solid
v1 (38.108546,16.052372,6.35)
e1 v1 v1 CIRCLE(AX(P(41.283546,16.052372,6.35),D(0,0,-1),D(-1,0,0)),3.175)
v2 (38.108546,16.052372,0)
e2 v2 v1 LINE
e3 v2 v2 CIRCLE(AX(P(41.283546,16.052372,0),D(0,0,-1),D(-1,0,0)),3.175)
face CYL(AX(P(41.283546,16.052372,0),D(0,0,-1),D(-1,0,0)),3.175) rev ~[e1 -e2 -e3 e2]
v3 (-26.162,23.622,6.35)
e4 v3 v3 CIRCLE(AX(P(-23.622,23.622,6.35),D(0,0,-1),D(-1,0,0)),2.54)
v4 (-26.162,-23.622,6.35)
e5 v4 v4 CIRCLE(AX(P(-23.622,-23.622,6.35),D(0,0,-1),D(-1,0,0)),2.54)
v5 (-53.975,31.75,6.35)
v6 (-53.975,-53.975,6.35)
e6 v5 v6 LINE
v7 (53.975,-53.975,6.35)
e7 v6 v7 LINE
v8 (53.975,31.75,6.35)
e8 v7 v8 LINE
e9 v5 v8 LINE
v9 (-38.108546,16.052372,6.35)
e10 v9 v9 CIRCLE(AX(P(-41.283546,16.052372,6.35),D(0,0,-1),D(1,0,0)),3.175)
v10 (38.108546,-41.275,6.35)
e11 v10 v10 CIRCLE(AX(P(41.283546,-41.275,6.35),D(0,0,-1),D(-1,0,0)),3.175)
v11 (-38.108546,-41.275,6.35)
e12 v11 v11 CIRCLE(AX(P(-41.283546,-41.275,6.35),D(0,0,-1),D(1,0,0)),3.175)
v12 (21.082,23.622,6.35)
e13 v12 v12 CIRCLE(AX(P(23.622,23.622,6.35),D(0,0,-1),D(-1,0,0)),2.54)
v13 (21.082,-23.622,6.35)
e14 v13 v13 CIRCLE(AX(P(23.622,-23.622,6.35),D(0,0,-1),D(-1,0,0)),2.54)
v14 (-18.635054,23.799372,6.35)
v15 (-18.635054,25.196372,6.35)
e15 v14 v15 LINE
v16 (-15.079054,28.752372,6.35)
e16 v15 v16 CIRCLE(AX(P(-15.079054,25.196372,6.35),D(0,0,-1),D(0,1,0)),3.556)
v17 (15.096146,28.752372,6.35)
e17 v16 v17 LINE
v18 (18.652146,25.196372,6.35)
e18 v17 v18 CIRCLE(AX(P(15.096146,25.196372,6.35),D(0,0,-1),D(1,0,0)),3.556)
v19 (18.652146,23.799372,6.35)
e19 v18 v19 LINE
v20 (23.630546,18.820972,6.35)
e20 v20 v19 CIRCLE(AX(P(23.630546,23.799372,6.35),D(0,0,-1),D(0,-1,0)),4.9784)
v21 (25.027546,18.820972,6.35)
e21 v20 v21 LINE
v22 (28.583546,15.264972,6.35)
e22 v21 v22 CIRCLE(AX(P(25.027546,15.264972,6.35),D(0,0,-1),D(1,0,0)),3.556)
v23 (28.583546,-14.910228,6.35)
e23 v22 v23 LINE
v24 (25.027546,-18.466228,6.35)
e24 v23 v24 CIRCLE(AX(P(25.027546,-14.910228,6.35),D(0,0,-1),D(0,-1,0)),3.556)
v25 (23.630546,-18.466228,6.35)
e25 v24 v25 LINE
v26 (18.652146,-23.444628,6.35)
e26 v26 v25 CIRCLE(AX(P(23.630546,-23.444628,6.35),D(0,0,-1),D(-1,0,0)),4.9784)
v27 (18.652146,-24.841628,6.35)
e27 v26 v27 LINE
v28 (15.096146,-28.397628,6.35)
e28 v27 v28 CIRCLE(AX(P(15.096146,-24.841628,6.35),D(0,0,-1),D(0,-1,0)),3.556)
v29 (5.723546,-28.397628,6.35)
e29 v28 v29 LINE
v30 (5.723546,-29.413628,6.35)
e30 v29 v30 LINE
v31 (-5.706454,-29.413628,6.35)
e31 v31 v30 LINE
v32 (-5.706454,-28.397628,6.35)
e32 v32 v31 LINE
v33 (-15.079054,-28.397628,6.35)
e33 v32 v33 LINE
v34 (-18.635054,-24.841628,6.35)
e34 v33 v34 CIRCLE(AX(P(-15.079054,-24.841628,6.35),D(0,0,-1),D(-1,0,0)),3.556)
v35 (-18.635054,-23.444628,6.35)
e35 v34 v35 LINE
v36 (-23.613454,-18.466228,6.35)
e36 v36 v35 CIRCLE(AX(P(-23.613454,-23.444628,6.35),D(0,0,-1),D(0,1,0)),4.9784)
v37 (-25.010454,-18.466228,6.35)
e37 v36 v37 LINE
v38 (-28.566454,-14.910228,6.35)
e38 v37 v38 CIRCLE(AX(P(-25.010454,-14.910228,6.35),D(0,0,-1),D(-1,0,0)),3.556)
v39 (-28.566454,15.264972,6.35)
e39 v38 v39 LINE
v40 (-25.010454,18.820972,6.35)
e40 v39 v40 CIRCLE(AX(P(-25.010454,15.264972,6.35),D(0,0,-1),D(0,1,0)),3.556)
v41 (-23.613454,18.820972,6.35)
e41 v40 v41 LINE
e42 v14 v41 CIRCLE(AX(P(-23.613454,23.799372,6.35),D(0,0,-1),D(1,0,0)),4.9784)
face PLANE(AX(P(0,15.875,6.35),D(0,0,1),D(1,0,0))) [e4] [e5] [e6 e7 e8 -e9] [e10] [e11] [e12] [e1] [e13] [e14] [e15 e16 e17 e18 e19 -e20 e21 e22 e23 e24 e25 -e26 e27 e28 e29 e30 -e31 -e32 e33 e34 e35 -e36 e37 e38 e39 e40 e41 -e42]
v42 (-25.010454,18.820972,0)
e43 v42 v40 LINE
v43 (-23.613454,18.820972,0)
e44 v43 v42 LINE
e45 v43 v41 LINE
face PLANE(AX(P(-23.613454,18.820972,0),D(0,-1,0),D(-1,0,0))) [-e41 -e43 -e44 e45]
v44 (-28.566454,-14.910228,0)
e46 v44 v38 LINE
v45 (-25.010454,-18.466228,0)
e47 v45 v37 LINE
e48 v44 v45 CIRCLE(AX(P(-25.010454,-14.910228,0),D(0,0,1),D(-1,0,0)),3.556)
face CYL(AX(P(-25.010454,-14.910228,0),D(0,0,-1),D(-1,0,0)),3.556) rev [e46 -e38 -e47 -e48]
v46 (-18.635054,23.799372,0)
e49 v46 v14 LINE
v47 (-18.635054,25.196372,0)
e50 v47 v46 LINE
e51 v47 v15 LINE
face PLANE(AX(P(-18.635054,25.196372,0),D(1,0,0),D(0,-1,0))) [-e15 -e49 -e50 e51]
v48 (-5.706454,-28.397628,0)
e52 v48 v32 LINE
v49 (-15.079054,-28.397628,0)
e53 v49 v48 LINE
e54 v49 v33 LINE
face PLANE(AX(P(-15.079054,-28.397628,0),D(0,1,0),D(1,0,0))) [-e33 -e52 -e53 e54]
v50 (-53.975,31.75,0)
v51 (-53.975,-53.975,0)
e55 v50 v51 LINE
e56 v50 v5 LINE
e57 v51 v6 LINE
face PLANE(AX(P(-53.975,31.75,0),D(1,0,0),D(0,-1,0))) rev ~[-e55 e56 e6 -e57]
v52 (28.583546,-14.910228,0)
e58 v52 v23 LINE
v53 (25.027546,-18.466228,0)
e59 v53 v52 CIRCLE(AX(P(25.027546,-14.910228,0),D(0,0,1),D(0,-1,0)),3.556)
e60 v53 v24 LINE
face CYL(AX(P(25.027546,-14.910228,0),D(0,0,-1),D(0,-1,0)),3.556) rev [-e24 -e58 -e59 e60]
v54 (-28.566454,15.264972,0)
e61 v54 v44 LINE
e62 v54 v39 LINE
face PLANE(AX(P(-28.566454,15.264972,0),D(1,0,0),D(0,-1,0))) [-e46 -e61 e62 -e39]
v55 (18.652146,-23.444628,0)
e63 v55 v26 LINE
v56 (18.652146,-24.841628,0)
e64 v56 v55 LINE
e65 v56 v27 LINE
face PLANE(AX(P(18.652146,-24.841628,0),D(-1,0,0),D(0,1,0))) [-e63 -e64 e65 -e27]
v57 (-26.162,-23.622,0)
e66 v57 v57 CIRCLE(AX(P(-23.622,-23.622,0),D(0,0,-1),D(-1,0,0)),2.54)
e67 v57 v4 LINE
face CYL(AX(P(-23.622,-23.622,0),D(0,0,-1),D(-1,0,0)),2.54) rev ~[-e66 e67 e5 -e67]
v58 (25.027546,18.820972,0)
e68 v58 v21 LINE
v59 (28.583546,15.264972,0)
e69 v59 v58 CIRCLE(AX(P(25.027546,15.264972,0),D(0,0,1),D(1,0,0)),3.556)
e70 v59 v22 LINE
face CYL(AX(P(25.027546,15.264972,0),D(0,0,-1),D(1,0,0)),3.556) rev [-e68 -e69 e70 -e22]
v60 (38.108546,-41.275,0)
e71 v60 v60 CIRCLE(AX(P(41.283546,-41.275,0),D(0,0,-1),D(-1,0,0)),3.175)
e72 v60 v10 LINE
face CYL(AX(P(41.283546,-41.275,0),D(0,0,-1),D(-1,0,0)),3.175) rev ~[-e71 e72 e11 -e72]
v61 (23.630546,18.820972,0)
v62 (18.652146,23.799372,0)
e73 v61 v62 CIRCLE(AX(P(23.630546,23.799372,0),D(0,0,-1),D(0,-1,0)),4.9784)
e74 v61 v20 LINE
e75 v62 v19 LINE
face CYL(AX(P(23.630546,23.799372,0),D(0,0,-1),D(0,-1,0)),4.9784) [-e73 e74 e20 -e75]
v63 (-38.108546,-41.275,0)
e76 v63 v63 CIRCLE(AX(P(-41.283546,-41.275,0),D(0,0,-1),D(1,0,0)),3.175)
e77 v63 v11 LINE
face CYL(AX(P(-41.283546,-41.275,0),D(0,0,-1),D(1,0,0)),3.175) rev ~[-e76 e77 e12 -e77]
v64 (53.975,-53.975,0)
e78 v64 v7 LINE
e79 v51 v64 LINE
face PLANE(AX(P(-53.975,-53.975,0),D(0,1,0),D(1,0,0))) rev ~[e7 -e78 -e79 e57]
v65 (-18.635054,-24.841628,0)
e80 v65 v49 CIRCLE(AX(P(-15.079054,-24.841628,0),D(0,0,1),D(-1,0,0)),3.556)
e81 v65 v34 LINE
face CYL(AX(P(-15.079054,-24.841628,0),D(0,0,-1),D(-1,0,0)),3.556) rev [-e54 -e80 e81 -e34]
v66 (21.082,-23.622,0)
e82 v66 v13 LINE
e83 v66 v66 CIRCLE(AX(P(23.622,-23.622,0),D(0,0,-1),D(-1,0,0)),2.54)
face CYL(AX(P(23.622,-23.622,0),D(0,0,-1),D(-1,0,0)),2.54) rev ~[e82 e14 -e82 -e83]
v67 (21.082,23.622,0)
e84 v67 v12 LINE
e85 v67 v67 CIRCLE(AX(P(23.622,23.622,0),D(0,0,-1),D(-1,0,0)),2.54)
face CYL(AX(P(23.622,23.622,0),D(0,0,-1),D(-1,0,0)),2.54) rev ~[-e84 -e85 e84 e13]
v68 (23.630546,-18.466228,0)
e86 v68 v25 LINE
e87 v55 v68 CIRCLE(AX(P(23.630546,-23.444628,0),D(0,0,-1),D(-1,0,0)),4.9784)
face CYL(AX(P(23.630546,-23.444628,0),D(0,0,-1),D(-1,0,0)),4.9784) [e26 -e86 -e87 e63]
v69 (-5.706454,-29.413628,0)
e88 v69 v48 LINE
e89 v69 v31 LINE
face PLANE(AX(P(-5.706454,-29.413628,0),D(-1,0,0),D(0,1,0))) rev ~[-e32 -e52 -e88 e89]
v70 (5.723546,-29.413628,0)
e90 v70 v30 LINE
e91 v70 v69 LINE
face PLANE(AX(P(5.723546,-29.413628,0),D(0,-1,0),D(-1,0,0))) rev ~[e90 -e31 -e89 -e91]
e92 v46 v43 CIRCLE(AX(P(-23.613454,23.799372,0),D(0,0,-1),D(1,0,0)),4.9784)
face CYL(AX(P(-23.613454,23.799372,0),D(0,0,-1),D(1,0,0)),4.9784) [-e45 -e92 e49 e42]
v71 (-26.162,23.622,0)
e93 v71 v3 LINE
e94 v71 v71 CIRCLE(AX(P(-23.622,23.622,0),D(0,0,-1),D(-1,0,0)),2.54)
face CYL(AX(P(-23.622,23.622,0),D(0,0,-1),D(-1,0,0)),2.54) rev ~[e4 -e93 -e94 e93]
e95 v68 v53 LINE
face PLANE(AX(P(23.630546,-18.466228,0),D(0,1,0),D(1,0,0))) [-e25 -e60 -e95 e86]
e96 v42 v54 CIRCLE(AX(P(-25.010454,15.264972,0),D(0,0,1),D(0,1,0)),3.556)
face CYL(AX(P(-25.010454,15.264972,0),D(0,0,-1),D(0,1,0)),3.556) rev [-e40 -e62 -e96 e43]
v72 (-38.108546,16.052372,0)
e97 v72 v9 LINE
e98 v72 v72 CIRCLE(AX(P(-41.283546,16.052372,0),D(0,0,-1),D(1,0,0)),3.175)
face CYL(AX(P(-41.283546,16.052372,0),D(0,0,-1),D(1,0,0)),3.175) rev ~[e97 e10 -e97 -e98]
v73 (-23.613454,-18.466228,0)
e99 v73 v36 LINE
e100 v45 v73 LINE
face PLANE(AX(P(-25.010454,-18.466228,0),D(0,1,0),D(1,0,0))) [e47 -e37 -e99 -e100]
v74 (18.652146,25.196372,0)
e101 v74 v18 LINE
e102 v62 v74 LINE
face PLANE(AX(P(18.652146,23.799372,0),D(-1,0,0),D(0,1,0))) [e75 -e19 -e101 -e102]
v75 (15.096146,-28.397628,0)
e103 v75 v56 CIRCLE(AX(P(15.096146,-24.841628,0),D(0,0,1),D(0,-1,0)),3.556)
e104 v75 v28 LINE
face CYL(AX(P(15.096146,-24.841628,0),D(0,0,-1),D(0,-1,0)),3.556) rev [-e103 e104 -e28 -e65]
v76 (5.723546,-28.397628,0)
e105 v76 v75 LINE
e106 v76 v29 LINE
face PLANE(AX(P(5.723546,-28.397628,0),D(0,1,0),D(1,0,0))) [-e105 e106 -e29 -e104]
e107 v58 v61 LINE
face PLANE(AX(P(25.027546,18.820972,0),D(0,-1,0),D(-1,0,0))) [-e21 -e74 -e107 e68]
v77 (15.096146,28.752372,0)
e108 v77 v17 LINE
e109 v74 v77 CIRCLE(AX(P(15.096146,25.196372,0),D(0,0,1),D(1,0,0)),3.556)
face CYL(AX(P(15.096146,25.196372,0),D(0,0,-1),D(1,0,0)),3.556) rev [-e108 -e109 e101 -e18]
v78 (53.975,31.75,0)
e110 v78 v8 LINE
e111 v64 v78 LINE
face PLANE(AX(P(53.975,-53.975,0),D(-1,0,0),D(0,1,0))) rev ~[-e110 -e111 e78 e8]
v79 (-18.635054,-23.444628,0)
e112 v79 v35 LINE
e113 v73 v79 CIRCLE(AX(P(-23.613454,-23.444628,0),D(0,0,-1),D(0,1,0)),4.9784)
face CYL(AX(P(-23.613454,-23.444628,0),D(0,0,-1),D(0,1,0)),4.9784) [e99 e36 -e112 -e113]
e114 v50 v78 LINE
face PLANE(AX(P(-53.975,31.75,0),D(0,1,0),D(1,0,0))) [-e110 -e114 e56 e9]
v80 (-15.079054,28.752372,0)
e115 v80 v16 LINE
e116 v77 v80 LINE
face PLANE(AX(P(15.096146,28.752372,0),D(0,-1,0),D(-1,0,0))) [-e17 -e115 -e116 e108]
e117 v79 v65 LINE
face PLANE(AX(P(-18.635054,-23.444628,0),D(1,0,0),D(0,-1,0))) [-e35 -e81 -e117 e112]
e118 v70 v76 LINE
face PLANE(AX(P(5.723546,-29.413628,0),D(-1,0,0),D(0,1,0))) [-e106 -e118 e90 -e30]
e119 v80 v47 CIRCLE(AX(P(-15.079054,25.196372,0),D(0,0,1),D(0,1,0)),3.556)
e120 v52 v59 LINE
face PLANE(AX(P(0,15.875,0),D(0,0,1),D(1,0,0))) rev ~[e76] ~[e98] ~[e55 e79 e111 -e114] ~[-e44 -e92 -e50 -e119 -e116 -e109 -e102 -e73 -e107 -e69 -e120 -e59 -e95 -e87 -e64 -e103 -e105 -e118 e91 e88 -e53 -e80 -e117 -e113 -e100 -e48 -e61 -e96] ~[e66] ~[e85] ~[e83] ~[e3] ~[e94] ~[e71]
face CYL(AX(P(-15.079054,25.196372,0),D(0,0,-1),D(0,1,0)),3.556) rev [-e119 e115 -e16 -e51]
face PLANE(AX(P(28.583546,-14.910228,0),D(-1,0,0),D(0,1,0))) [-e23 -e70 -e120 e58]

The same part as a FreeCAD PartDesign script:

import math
import FreeCAD as App
import Part
import Sketcher
from FreeCAD import Vector
Q = App.Units.Quantity

doc = App.newDocument("Part")
body = doc.addObject("PartDesign::Body", "Body")

# Sketch on XY plane
sketch1 = body.newObject("Sketcher::SketchObject", "Sketch")
sketch1.AttachmentSupport = (doc.getObject("XY_Plane"), [""])
sketch1.MapMode = "FlatFace"
sketch1.addGeometry(Part.LineSegment(Vector(-54, 32, 0), Vector(-54, -54, 0)), False)
sketch1.addGeometry(Part.LineSegment(Vector(-54, -54, 0), Vector(54, -54, 0)), False)
sketch1.addGeometry(Part.LineSegment(Vector(54, -54, 0), Vector(54, 32, 0)), False)
sketch1.addGeometry(Part.LineSegment(Vector(54, 32, 0), Vector(-54, 32, 0)), False)
sketch1.addConstraint(Sketcher.Constraint("Coincident", 0, 2, 1, 1))
sketch1.addConstraint(Sketcher.Constraint("Coincident", 1, 2, 2, 1))
sketch1.addConstraint(Sketcher.Constraint("Coincident", 2, 2, 3, 1))
sketch1.addConstraint(Sketcher.Constraint("Coincident", 3, 2, 0, 1))
sketch1.addConstraint(Sketcher.Constraint("Vertical", 0))
sketch1.addConstraint(Sketcher.Constraint("Horizontal", 1))
sketch1.addConstraint(Sketcher.Constraint("Vertical", 2))
sketch1.addConstraint(Sketcher.Constraint("Horizontal", 3))
sketch1.addConstraint(Sketcher.Constraint("DistanceX", 1, 1, 1, 2, Q("4.25 in")))
sketch1.addConstraint(Sketcher.Constraint("DistanceY", 0, 2, 0, 1, Q("3.375 in")))
sketch1.addConstraint(Sketcher.Constraint("DistanceY", -1, 1, 2, 2, Q("1.25 in")))
sketch1.addConstraint(Sketcher.Constraint("DistanceX", 0, 2, -1, 1, Q("2.125 in")))
pad1 = body.newObject("PartDesign::Pad", "Pad")
pad1.Profile = sketch1
pad1.Length = Q("0.25 in")

# Sketch on XY plane
sketch2 = body.newObject("Sketcher::SketchObject", "Sketch001")
sketch2.AttachmentSupport = (doc.getObject("XY_Plane"), [""])
sketch2.MapMode = "FlatFace"
sketch2.addGeometry(Part.Circle(Vector(-23.6, -23.6, 0), Vector(0, 0, 1), 2.5), False)
sketch2.addGeometry(Part.Circle(Vector(23.6, -23.6, 0), Vector(0, 0, 1), 2.5), False)
sketch2.addGeometry(Part.Circle(Vector(23.6, 23.6, 0), Vector(0, 0, 1), 2.5), False)
sketch2.addGeometry(Part.Circle(Vector(-23.6, 23.6, 0), Vector(0, 0, 1), 2.5), False)
sketch2.addConstraint(Sketcher.Constraint("Equal", 0, 1))
sketch2.addConstraint(Sketcher.Constraint("Equal", 1, 2))
sketch2.addConstraint(Sketcher.Constraint("Equal", 2, 3))
sketch2.addConstraint(Sketcher.Constraint("Symmetric", 0, 3, 2, 3, -1, 1))
sketch2.addConstraint(Sketcher.Constraint("Symmetric", 1, 3, 3, 3, -1, 1))
sketch2.addConstraint(Sketcher.Constraint("Symmetric", 0, 3, 1, 3, -2))
sketch2.addConstraint(Sketcher.Constraint("Diameter", 0, Q("0.2 in")))
sketch2.addConstraint(Sketcher.Constraint("DistanceX", 0, 3, -1, 1, Q("0.93 in")))
sketch2.addConstraint(Sketcher.Constraint("DistanceY", 0, 3, -1, 1, Q("0.93 in")))
pocket1 = body.newObject("PartDesign::Pocket", "Pocket")
pocket1.Profile = sketch2
pocket1.Length = Q("0.3 in")
pocket1.Reversed = True

# Sketch on XY plane
sketch3 = body.newObject("Sketcher::SketchObject", "Sketch002")
sketch3.AttachmentSupport = (doc.getObject("XY_Plane"), [""])
sketch3.MapMode = "FlatFace"
sketch3.addGeometry(Part.ArcOfCircle(Part.Circle(Vector(25, -14.9, 0), Vector(0, 0, 1), 3.6), math.radians(-90), math.radians(0)), False)
sketch3.addGeometry(Part.LineSegment(Vector(25, -18.5, 0), Vector(23.6, -18.5, 0)), False)
sketch3.addGeometry(Part.ArcOfCircle(Part.Circle(Vector(23.6, -23.4, 0), Vector(0, 0, 1), 5), math.radians(90), math.radians(180)), False)
sketch3.addGeometry(Part.LineSegment(Vector(18.7, -23.4, 0), Vector(18.7, -24.8, 0)), False)
sketch3.addGeometry(Part.ArcOfCircle(Part.Circle(Vector(15.1, -24.8, 0), Vector(0, 0, 1), 3.6), math.radians(-90), math.radians(0)), False)
sketch3.addGeometry(Part.LineSegment(Vector(15.1, -28.4, 0), Vector(5.7, -28.4, 0)), False)
sketch3.addGeometry(Part.LineSegment(Vector(5.7, -28.4, 0), Vector(5.7, -29.4, 0)), False)
sketch3.addGeometry(Part.LineSegment(Vector(5.7, -29.4, 0), Vector(-5.7, -29.4, 0)), False)
sketch3.addGeometry(Part.LineSegment(Vector(-5.7, -29.4, 0), Vector(-5.7, -28.4, 0)), False)
sketch3.addGeometry(Part.LineSegment(Vector(-5.7, -28.4, 0), Vector(-15.1, -28.4, 0)), False)
sketch3.addGeometry(Part.ArcOfCircle(Part.Circle(Vector(-15.1, -24.8, 0), Vector(0, 0, 1), 3.6), math.radians(180), math.radians(270)), False)
sketch3.addGeometry(Part.LineSegment(Vector(-18.6, -24.8, 0), Vector(-18.6, -23.4, 0)), False)
sketch3.addGeometry(Part.ArcOfCircle(Part.Circle(Vector(-23.6, -23.4, 0), Vector(0, 0, 1), 5), math.radians(0), math.radians(90)), False)
sketch3.addGeometry(Part.LineSegment(Vector(-23.6, -18.5, 0), Vector(-25, -18.5, 0)), False)
sketch3.addGeometry(Part.ArcOfCircle(Part.Circle(Vector(-25, -14.9, 0), Vector(0, 0, 1), 3.6), math.radians(180), math.radians(270)), False)
sketch3.addGeometry(Part.LineSegment(Vector(-28.6, -14.9, 0), Vector(-28.6, 15.3, 0)), False)
sketch3.addGeometry(Part.ArcOfCircle(Part.Circle(Vector(-25, 15.3, 0), Vector(0, 0, 1), 3.6), math.radians(90), math.radians(180)), False)
sketch3.addGeometry(Part.LineSegment(Vector(-25, 18.8, 0), Vector(-23.6, 18.8, 0)), False)
sketch3.addGeometry(Part.ArcOfCircle(Part.Circle(Vector(-23.6, 23.8, 0), Vector(0, 0, 1), 5), math.radians(-90), math.radians(0)), False)
sketch3.addGeometry(Part.LineSegment(Vector(-18.6, 23.8, 0), Vector(-18.6, 25.2, 0)), False)
sketch3.addGeometry(Part.ArcOfCircle(Part.Circle(Vector(-15.1, 25.2, 0), Vector(0, 0, 1), 3.6), math.radians(90), math.radians(180)), False)
sketch3.addGeometry(Part.LineSegment(Vector(-15.1, 28.8, 0), Vector(15.1, 28.8, 0)), False)
sketch3.addGeometry(Part.ArcOfCircle(Part.Circle(Vector(15.1, 25.2, 0), Vector(0, 0, 1), 3.6), math.radians(0), math.radians(90)), False)
sketch3.addGeometry(Part.LineSegment(Vector(18.7, 25.2, 0), Vector(18.7, 23.8, 0)), False)
sketch3.addGeometry(Part.ArcOfCircle(Part.Circle(Vector(23.6, 23.8, 0), Vector(0, 0, 1), 5), math.radians(180), math.radians(270)), False)
sketch3.addGeometry(Part.LineSegment(Vector(23.6, 18.8, 0), Vector(25, 18.8, 0)), False)
sketch3.addGeometry(Part.ArcOfCircle(Part.Circle(Vector(25, 15.3, 0), Vector(0, 0, 1), 3.6), math.radians(0), math.radians(90)), False)
sketch3.addGeometry(Part.LineSegment(Vector(28.6, 15.3, 0), Vector(28.6, -14.9, 0)), False)
sketch3.addConstraint(Sketcher.Constraint("Tangent", 0, 1, 1, 1))
sketch3.addConstraint(Sketcher.Constraint("Tangent", 1, 2, 2, 1))
sketch3.addConstraint(Sketcher.Constraint("Tangent", 2, 2, 3, 1))
sketch3.addConstraint(Sketcher.Constraint("Tangent", 3, 2, 4, 2))
sketch3.addConstraint(Sketcher.Constraint("Tangent", 4, 1, 5, 1))
sketch3.addConstraint(Sketcher.Constraint("Coincident", 5, 2, 6, 1))
sketch3.addConstraint(Sketcher.Constraint("Coincident", 6, 2, 7, 1))
sketch3.addConstraint(Sketcher.Constraint("Coincident", 7, 2, 8, 1))
sketch3.addConstraint(Sketcher.Constraint("Coincident", 8, 2, 9, 1))
sketch3.addConstraint(Sketcher.Constraint("Tangent", 9, 2, 10, 2))
sketch3.addConstraint(Sketcher.Constraint("Tangent", 10, 1, 11, 1))
sketch3.addConstraint(Sketcher.Constraint("Tangent", 11, 2, 12, 1))
sketch3.addConstraint(Sketcher.Constraint("Tangent", 12, 2, 13, 1))
sketch3.addConstraint(Sketcher.Constraint("Tangent", 13, 2, 14, 2))
sketch3.addConstraint(Sketcher.Constraint("Tangent", 14, 1, 15, 1))
sketch3.addConstraint(Sketcher.Constraint("Tangent", 15, 2, 16, 2))
sketch3.addConstraint(Sketcher.Constraint("Tangent", 16, 1, 17, 1))
sketch3.addConstraint(Sketcher.Constraint("Tangent", 17, 2, 18, 1))
sketch3.addConstraint(Sketcher.Constraint("Tangent", 18, 2, 19, 1))
sketch3.addConstraint(Sketcher.Constraint("Tangent", 19, 2, 20, 2))
sketch3.addConstraint(Sketcher.Constraint("Tangent", 20, 1, 21, 1))
sketch3.addConstraint(Sketcher.Constraint("Tangent", 21, 2, 22, 2))
sketch3.addConstraint(Sketcher.Constraint("Tangent", 22, 1, 23, 1))
sketch3.addConstraint(Sketcher.Constraint("Tangent", 23, 2, 24, 1))
sketch3.addConstraint(Sketcher.Constraint("Tangent", 24, 2, 25, 1))
sketch3.addConstraint(Sketcher.Constraint("Tangent", 25, 2, 26, 2))
sketch3.addConstraint(Sketcher.Constraint("Tangent", 26, 1, 27, 1))
sketch3.addConstraint(Sketcher.Constraint("Tangent", 27, 2, 0, 2))
sketch3.addConstraint(Sketcher.Constraint("Horizontal", 1))
sketch3.addConstraint(Sketcher.Constraint("Vertical", 3))
sketch3.addConstraint(Sketcher.Constraint("Horizontal", 5))
sketch3.addConstraint(Sketcher.Constraint("Vertical", 6))
sketch3.addConstraint(Sketcher.Constraint("Horizontal", 7))
sketch3.addConstraint(Sketcher.Constraint("Vertical", 8))
sketch3.addConstraint(Sketcher.Constraint("Horizontal", 9))
sketch3.addConstraint(Sketcher.Constraint("Vertical", 11))
sketch3.addConstraint(Sketcher.Constraint("Horizontal", 13))
sketch3.addConstraint(Sketcher.Constraint("Vertical", 15))
sketch3.addConstraint(Sketcher.Constraint("Horizontal", 17))
sketch3.addConstraint(Sketcher.Constraint("Vertical", 19))
sketch3.addConstraint(Sketcher.Constraint("Horizontal", 21))
sketch3.addConstraint(Sketcher.Constraint("Vertical", 23))
sketch3.addConstraint(Sketcher.Constraint("Horizontal", 25))
sketch3.addConstraint(Sketcher.Constraint("Vertical", 27))
sketch3.addConstraint(Sketcher.Constraint("Equal", 0, 4))
sketch3.addConstraint(Sketcher.Constraint("Equal", 4, 10))
sketch3.addConstraint(Sketcher.Constraint("Equal", 2, 12))
sketch3.addConstraint(Sketcher.Constraint("Equal", 10, 14))
sketch3.addConstraint(Sketcher.Constraint("Equal", 14, 16))
sketch3.addConstraint(Sketcher.Constraint("Equal", 12, 18))
sketch3.addConstraint(Sketcher.Constraint("Equal", 16, 20))
sketch3.addConstraint(Sketcher.Constraint("Equal", 20, 22))
sketch3.addConstraint(Sketcher.Constraint("Equal", 18, 24))
sketch3.addConstraint(Sketcher.Constraint("Equal", 22, 26))
sketch3.addConstraint(Sketcher.Constraint("Horizontal", 4, 3, 10, 3))
sketch3.addConstraint(Sketcher.Constraint("Horizontal", 2, 3, 12, 3))
sketch3.addConstraint(Sketcher.Constraint("Horizontal", 18, 3, 24, 3))
sketch3.addConstraint(Sketcher.Constraint("Vertical", 12, 3, 18, 3))
sketch3.addConstraint(Sketcher.Constraint("Vertical", 4, 3, 22, 3))
sketch3.addConstraint(Sketcher.Constraint("Equal", 5, 9))
sketch3.addConstraint(Sketcher.Constraint("Equal", 1, 13))
sketch3.addConstraint(Sketcher.Constraint("Equal", 25, 3))
sketch3.addConstraint(Sketcher.Constraint("Equal", 21, 15))
sketch3.addConstraint(Sketcher.Constraint("Equal", 11, 19))
sketch3.addConstraint(Sketcher.Constraint("Radius", 0, Q("0.14 in")))
sketch3.addConstraint(Sketcher.Constraint("Radius", 2, Q("0.196 in")))
sketch3.addConstraint(Sketcher.Constraint("DistanceX", 7, 2, 7, 1, Q("0.45 in")))
sketch3.addConstraint(Sketcher.Constraint("DistanceY", 6, 2, 6, 1, Q("0.04 in")))
sketch3.addConstraint(Sketcher.Constraint("DistanceX", 1, 2, 1, 1, Q("0.055 in")))
sketch3.addConstraint(Sketcher.Constraint("DistanceX", 5, 2, 5, 1, Q("0.369 in")))
sketch3.addConstraint(Sketcher.Constraint("DistanceX", -1, 1, 0, 3, 25.027546))
sketch3.addConstraint(Sketcher.Constraint("DistanceY", 0, 3, -1, 1, 14.910228))
pocket2 = body.newObject("PartDesign::Pocket", "Pocket001")
pocket2.Profile = sketch3
pocket2.Length = Q("0.3 in")
pocket2.Reversed = True

# Sketch on XY plane
sketch4 = body.newObject("Sketcher::SketchObject", "Sketch003")
sketch4.AttachmentSupport = (doc.getObject("XY_Plane"), [""])
sketch4.MapMode = "FlatFace"
sketch4.addGeometry(Part.Circle(Vector(41.3, 16.1, 0), Vector(0, 0, 1), 3.2), False)
sketch4.addGeometry(Part.Circle(Vector(41.3, -41.3, 0), Vector(0, 0, 1), 3.2), False)
sketch4.addGeometry(Part.Circle(Vector(-41.3, -41.3, 0), Vector(0, 0, 1), 3.2), False)
sketch4.addGeometry(Part.Circle(Vector(-41.3, 16.1, 0), Vector(0, 0, 1), 3.2), False)
sketch4.addConstraint(Sketcher.Constraint("Equal", 0, 1))
sketch4.addConstraint(Sketcher.Constraint("Equal", 1, 2))
sketch4.addConstraint(Sketcher.Constraint("Equal", 2, 3))
sketch4.addConstraint(Sketcher.Constraint("Symmetric", 1, 3, 2, 3, -2))
sketch4.addConstraint(Sketcher.Constraint("Symmetric", 0, 3, 3, 3, -2))
sketch4.addConstraint(Sketcher.Constraint("Vertical", 0, 3, 1, 3))
sketch4.addConstraint(Sketcher.Constraint("Diameter", 0, Q("0.25 in")))
sketch4.addConstraint(Sketcher.Constraint("DistanceY", 1, 3, -1, 1, Q("1.625 in")))
sketch4.addConstraint(Sketcher.Constraint("DistanceX", 2, 3, 1, 3, 82.567092))
sketch4.addConstraint(Sketcher.Constraint("DistanceY", -1, 1, 0, 3, 16.052372))
pocket3 = body.newObject("PartDesign::Pocket", "Pocket002")
pocket3.Profile = sketch4
pocket3.Length = Q("0.3 in")
pocket3.Reversed = True

doc.recompute()
